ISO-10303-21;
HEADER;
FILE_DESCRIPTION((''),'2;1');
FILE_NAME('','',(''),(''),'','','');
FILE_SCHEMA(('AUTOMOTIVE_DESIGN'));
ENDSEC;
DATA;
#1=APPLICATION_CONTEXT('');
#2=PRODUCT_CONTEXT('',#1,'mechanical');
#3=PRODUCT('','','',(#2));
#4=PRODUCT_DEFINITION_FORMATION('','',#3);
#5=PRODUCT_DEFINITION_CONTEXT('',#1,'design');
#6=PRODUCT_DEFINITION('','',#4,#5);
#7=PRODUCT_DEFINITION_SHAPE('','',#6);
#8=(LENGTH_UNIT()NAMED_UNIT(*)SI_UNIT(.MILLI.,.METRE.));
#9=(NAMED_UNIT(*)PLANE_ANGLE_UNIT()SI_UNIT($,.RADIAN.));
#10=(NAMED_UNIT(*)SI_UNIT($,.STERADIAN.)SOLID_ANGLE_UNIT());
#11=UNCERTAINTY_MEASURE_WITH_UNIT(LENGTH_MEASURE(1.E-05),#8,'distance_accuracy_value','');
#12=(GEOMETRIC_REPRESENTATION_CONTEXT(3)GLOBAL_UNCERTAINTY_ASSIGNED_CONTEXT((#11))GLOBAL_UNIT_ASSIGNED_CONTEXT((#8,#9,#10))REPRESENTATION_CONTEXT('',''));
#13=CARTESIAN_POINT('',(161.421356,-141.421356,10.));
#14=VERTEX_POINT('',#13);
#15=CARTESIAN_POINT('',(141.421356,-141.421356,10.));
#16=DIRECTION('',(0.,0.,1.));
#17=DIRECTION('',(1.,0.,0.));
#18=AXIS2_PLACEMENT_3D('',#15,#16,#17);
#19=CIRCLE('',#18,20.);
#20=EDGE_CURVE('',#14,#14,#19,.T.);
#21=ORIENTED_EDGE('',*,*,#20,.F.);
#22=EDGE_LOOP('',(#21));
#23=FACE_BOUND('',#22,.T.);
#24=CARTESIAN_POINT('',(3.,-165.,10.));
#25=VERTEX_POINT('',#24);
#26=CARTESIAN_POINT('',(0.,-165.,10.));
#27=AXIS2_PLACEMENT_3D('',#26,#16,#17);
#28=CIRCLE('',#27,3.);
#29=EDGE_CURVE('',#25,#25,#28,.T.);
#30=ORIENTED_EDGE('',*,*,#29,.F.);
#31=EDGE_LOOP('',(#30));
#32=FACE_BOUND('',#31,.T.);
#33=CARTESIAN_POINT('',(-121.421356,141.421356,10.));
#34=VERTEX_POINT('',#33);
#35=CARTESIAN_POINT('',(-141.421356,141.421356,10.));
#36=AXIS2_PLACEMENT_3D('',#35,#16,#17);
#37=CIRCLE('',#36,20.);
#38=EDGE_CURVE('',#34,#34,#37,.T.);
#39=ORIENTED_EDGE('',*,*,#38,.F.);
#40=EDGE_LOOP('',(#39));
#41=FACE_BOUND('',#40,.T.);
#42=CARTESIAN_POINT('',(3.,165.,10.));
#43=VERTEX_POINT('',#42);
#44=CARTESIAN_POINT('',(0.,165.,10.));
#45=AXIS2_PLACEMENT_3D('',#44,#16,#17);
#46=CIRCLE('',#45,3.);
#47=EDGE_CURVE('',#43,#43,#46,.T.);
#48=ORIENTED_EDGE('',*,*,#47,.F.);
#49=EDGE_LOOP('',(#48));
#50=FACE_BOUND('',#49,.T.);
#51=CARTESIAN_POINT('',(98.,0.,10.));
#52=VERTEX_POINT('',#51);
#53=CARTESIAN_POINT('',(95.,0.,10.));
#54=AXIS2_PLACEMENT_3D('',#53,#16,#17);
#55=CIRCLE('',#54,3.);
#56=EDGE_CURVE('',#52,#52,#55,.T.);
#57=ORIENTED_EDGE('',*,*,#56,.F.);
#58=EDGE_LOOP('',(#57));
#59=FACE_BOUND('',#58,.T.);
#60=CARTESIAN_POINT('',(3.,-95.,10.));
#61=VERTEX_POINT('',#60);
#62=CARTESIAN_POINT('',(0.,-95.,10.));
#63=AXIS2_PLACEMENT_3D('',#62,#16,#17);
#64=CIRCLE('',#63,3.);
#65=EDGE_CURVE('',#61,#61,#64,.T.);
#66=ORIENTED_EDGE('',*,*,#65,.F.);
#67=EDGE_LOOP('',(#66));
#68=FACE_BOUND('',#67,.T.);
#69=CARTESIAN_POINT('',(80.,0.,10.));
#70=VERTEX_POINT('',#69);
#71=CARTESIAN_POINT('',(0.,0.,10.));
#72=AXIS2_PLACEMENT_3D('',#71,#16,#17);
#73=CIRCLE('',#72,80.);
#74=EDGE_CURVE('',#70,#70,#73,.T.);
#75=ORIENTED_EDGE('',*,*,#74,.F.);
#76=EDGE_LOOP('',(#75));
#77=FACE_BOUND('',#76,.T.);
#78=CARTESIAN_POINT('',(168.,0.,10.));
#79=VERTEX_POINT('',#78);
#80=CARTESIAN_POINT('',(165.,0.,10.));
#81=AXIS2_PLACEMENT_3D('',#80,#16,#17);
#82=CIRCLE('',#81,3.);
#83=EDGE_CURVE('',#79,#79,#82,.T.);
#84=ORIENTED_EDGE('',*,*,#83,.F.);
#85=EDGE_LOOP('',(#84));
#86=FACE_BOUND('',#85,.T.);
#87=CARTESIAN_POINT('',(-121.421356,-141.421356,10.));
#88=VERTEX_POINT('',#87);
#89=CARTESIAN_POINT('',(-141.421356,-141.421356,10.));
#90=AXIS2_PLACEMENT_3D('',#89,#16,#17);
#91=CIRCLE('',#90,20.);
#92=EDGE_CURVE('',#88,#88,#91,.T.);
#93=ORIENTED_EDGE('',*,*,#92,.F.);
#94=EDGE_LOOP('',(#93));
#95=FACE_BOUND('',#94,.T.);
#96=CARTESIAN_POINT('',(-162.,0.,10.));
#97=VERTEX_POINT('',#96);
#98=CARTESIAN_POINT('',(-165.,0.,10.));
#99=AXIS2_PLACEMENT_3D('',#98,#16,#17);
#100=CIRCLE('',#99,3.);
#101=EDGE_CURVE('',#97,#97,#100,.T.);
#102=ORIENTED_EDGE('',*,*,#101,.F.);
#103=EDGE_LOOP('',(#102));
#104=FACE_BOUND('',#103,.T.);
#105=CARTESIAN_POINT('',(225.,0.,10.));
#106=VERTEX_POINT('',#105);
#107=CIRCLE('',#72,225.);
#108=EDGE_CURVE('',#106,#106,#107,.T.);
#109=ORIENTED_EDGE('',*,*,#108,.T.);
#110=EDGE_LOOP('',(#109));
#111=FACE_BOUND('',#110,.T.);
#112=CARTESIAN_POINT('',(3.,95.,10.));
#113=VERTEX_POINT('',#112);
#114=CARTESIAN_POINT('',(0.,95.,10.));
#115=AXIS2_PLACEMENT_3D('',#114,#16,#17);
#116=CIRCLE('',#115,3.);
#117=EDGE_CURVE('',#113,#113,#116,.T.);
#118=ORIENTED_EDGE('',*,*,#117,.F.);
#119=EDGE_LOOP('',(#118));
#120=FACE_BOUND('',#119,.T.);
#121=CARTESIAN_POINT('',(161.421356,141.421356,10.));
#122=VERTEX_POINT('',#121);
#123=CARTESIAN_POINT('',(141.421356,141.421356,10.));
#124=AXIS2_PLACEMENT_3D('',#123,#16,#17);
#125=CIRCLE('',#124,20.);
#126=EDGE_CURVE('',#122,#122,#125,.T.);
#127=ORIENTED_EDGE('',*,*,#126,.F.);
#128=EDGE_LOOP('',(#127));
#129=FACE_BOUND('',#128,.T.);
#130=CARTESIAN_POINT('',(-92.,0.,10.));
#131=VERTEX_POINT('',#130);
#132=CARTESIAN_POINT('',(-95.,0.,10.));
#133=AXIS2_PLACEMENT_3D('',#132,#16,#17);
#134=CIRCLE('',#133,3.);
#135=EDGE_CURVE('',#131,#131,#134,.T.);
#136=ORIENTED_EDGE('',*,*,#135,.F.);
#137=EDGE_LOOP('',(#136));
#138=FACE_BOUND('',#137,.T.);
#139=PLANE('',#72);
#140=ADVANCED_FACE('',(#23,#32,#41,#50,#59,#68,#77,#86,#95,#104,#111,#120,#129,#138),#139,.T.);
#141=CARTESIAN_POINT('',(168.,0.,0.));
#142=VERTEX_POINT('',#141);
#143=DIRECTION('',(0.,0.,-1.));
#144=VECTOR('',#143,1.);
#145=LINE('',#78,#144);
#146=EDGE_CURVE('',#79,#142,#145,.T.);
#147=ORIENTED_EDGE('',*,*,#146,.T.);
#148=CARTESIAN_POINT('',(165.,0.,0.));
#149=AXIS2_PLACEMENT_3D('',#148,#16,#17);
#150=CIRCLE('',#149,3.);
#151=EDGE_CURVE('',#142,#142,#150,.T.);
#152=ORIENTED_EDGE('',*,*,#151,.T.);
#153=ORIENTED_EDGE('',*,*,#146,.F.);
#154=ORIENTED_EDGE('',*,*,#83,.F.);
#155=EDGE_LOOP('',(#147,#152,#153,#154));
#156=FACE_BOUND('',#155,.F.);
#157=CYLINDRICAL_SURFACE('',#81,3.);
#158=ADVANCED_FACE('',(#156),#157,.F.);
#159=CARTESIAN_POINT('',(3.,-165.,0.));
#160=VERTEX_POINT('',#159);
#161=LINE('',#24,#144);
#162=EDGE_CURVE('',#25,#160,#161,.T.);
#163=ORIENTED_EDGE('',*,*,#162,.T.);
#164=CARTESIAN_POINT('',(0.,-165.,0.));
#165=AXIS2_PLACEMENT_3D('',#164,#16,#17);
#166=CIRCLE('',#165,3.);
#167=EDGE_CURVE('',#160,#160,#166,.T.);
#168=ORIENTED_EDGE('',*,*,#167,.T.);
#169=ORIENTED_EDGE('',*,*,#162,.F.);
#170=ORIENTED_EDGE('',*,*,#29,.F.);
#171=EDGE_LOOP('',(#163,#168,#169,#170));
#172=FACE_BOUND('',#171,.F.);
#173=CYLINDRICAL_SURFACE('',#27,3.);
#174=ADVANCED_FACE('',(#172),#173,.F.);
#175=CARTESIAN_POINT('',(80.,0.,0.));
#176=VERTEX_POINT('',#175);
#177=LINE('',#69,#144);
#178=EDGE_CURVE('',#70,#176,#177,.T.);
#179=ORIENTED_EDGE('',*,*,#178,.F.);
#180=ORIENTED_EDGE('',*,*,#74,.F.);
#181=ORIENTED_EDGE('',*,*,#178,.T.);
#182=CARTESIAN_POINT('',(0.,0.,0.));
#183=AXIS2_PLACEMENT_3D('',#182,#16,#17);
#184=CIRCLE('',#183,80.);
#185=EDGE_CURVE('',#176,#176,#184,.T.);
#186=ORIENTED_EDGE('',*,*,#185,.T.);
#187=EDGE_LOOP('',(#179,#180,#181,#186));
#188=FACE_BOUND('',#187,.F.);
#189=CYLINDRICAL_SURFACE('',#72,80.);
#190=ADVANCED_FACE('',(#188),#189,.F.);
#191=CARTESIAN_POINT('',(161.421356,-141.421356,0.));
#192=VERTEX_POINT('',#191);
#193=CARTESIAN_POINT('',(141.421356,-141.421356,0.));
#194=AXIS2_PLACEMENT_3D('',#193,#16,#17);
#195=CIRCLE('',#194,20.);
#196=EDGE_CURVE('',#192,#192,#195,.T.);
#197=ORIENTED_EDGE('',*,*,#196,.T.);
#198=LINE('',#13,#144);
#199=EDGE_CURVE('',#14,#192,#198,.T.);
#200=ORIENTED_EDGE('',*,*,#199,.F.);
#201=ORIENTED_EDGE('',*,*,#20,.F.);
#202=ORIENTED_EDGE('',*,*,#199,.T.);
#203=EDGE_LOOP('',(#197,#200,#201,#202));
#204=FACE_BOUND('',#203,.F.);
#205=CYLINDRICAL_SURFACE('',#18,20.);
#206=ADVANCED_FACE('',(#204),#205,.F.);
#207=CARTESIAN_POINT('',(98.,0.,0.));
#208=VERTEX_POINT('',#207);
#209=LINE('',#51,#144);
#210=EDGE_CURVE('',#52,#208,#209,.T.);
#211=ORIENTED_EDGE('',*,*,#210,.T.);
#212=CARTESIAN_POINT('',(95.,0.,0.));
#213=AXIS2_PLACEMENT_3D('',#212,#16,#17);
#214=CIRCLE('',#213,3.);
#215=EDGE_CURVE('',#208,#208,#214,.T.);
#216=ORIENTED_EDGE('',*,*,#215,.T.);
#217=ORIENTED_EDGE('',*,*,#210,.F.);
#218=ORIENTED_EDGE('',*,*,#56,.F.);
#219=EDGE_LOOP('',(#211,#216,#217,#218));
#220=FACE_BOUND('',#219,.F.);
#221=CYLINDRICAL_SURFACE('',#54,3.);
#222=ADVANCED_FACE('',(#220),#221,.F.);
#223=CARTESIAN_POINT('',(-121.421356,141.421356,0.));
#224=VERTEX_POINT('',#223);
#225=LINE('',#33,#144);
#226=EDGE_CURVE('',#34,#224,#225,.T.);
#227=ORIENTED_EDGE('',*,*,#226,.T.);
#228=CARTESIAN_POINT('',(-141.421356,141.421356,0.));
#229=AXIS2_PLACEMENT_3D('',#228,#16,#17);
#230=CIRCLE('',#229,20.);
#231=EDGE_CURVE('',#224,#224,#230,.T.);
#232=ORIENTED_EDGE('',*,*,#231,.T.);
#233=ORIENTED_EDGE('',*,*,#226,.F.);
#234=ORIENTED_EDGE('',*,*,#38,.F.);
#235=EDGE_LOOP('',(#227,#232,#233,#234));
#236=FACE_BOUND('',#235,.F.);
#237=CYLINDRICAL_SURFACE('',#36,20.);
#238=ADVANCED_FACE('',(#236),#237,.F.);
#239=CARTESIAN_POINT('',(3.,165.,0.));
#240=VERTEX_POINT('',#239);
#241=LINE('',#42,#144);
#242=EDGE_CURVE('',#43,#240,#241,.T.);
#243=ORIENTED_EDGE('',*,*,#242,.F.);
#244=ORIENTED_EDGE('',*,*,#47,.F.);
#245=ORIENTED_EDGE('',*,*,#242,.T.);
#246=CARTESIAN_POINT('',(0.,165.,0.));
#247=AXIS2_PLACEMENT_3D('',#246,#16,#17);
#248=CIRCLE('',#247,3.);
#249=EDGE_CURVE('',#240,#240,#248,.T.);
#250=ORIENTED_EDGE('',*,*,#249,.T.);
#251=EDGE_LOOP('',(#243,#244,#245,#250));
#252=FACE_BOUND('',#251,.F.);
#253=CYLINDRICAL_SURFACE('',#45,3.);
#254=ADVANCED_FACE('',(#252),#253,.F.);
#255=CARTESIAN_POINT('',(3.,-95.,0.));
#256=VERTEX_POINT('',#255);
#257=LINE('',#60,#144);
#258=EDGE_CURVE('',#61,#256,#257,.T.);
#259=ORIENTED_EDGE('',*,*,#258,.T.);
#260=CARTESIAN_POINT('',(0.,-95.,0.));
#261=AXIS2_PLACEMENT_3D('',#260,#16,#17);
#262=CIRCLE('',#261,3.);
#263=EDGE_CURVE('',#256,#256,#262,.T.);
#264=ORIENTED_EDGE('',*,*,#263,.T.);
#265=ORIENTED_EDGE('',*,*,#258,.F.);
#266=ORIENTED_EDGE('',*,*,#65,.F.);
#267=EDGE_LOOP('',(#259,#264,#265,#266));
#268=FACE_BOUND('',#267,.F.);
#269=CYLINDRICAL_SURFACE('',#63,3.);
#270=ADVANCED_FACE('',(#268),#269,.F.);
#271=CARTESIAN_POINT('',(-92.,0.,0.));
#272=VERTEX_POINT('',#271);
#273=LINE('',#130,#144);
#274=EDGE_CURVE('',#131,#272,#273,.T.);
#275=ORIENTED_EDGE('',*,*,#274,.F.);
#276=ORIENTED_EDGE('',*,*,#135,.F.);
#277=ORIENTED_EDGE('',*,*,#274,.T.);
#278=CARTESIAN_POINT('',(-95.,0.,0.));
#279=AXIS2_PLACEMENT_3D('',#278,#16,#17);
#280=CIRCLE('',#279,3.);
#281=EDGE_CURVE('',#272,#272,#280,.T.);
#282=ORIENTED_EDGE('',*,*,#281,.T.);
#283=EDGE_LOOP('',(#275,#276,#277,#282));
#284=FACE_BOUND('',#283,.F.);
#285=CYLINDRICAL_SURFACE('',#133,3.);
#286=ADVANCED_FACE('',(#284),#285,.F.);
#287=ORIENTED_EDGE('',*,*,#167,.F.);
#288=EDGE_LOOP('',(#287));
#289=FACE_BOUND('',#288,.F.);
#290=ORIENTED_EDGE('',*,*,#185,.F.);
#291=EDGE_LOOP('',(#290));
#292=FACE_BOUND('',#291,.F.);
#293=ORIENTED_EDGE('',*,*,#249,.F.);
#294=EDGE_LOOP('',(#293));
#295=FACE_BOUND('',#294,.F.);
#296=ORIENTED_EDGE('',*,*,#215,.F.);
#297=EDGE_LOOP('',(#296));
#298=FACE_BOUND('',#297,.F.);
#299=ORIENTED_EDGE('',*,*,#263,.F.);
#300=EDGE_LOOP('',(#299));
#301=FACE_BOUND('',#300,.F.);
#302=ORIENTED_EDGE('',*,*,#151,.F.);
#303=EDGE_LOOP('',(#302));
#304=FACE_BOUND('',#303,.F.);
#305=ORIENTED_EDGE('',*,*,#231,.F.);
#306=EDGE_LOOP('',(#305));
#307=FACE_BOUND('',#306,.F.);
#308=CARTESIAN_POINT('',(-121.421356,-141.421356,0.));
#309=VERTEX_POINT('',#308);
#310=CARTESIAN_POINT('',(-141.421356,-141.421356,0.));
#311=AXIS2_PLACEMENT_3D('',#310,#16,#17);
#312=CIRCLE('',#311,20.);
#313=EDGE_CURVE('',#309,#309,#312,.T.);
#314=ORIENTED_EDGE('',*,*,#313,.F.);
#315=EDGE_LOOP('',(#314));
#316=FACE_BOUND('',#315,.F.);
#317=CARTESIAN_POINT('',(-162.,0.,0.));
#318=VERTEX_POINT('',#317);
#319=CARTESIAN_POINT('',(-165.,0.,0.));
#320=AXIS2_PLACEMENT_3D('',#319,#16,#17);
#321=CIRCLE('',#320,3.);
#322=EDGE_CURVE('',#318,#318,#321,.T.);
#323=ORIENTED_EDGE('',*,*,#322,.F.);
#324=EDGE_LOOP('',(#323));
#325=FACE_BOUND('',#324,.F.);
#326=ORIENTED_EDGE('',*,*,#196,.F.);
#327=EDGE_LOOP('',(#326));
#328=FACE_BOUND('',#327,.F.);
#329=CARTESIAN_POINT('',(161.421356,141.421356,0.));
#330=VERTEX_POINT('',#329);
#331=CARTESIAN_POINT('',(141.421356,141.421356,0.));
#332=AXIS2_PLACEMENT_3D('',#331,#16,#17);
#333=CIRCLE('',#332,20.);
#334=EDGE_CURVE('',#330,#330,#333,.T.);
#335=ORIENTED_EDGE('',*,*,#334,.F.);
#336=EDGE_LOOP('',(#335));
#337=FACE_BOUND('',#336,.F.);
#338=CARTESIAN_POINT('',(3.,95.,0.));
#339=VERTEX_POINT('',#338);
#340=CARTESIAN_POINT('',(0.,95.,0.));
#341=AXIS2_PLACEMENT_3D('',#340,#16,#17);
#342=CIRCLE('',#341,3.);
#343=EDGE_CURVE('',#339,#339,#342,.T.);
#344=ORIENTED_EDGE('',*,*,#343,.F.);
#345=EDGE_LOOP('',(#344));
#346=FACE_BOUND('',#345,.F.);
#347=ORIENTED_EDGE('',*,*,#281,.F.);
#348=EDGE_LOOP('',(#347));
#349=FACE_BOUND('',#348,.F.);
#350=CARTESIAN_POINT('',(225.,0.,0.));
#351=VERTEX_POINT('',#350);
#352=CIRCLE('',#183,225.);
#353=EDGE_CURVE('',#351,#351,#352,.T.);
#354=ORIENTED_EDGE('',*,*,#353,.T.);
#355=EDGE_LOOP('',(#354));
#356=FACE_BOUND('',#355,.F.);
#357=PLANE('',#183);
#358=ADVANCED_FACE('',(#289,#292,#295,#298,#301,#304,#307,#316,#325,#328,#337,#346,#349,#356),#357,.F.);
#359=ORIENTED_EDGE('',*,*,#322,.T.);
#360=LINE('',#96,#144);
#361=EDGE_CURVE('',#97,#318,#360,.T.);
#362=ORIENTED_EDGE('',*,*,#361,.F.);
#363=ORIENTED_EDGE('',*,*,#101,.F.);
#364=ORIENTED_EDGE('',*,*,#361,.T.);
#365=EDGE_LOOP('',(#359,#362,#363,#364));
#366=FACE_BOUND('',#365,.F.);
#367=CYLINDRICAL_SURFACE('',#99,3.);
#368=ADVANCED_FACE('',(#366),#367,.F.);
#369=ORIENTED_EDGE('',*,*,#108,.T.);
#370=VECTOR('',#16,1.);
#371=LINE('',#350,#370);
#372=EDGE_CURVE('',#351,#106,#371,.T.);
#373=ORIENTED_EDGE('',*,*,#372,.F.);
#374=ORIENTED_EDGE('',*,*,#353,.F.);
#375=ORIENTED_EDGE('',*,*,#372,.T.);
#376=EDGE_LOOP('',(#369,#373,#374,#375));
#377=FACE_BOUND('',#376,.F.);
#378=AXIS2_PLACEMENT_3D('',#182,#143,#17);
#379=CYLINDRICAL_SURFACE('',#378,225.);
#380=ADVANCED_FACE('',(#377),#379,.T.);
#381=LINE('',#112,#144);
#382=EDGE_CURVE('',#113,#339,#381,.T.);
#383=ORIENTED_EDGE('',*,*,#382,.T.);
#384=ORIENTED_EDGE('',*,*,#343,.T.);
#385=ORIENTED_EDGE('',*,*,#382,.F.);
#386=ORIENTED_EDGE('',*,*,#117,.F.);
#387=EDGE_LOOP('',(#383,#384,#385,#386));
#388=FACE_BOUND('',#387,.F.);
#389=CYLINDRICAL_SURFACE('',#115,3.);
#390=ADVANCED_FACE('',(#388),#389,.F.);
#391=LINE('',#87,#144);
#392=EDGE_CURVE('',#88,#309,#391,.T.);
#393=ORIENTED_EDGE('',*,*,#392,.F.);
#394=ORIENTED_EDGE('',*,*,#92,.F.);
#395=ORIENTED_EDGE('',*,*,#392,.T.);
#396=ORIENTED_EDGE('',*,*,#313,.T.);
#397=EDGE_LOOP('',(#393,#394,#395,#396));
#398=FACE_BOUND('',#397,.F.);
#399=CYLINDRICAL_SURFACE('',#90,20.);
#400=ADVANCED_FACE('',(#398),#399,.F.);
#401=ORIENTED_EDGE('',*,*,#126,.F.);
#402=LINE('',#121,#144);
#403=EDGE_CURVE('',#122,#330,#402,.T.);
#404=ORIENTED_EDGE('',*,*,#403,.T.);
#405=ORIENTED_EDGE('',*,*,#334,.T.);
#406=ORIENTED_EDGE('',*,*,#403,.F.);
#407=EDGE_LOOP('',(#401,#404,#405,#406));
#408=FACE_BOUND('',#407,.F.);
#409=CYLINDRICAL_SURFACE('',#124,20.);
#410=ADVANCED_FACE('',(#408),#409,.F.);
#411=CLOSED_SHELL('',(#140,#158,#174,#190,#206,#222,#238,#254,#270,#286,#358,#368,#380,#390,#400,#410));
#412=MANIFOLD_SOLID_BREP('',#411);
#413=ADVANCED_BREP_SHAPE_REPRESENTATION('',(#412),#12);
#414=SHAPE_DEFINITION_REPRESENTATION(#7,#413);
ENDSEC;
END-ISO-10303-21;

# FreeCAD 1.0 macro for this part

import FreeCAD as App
import Part
import Sketcher

V = App.Vector
Q = App.Units.Quantity

doc = App.newDocument("Part")
body = doc.addObject("PartDesign::Body", "Body")

# Sketch on XY plane
sketch1 = body.newObject("Sketcher::SketchObject", "Sketch")
sketch1.AttachmentSupport = (doc.getObject("XY_Plane"), [""])
sketch1.MapMode = "FlatFace"
sketch1.addGeometry(Part.Circle(V(0, 0, 0), V(0, 0, 1), 225), False)
sketch1.addConstraint([
    Sketcher.Constraint("Coincident", 0, 3, -1, 1),
    Sketcher.Constraint("Diameter", 0, Q("450 mm")),
])
pad1 = body.newObject("PartDesign::Pad", "Pad")
pad1.Profile = sketch1
pad1.Length = 10

# Sketch on XY plane
sketch2 = body.newObject("Sketcher::SketchObject", "Sketch001")
sketch2.AttachmentSupport = (doc.getObject("XY_Plane"), [""])
sketch2.MapMode = "FlatFace"
sketch2.AttachmentOffset = App.Placement(V(0, 0, 10), App.Rotation())
sketch2.addGeometry([
    Part.Circle(V(0, 0, 0), V(0, 0, 1), 80),  # 0
    Part.Circle(V(-95, 0, 0), V(0, 0, 1), 3),  # 1
    Part.Circle(V(-165, 0, 0), V(0, 0, 1), 3),  # 2
    Part.Circle(V(0, -95, 0), V(0, 0, 1), 3),  # 3
    Part.Circle(V(0, -165, 0), V(0, 0, 1), 3),  # 4
    Part.Circle(V(0, 165, 0), V(0, 0, 1), 3),  # 5
    Part.Circle(V(0, 95, 0), V(0, 0, 1), 3),  # 6
    Part.Circle(V(95, 0, 0), V(0, 0, 1), 3),  # 7
    Part.Circle(V(165, 0, 0), V(0, 0, 1), 3),  # 8
    Part.Circle(V(-141.421356, -141.421356, 0), V(0, 0, 1), 20),  # 9
    Part.Circle(V(-141.421356, 141.421356, 0), V(0, 0, 1), 20),  # 10
    Part.Circle(V(141.421356, -141.421356, 0), V(0, 0, 1), 20),  # 11
    Part.Circle(V(141.421356, 141.421356, 0), V(0, 0, 1), 20),  # 12
], False)
sketch2.addConstraint([
    Sketcher.Constraint("Coincident", 0, 3, -1, 1),
    Sketcher.Constraint("Equal", 1, 2),
    Sketcher.Constraint("Equal", 2, 3),
    Sketcher.Constraint("Equal", 3, 4),
    Sketcher.Constraint("Equal", 4, 5),
    Sketcher.Constraint("Equal", 5, 6),
    Sketcher.Constraint("Equal", 6, 7),
    Sketcher.Constraint("Equal", 7, 8),
    Sketcher.Constraint("Equal", 9, 10),
    Sketcher.Constraint("Equal", 10, 11),
    Sketcher.Constraint("Equal", 11, 12),
    Sketcher.Constraint("Symmetric", 4, 3, 5, 3, -1, 1),
    Sketcher.Constraint("Symmetric", 3, 3, 6, 3, -1, 1),
    Sketcher.Constraint("Symmetric", 1, 3, 7, 3, -1, 1),
    Sketcher.Constraint("Symmetric", 2, 3, 8, 3, -1, 1),
    Sketcher.Constraint("Symmetric", 10, 3, 11, 3, -1, 1),
    Sketcher.Constraint("Symmetric", 9, 3, 12, 3, -1, 1),
    Sketcher.Constraint("Symmetric", 9, 3, 11, 3, -2),
    Sketcher.Constraint("PointOnObject", 1, 3, -1),
    Sketcher.Constraint("PointOnObject", 2, 3, -1),
    Sketcher.Constraint("PointOnObject", 3, 3, -2),
    Sketcher.Constraint("PointOnObject", 4, 3, -2),
    Sketcher.Constraint("Diameter", 0, Q("160 mm")),
    Sketcher.Constraint("Diameter", 1, Q("6 mm")),
    Sketcher.Constraint("Diameter", 9, Q("40 mm")),
    Sketcher.Constraint("DistanceX", 1, 3, -1, 1, Q("95 mm")),
    Sketcher.Constraint("DistanceX", 2, 3, -1, 1, Q("165 mm")),
    Sketcher.Constraint("DistanceY", 3, 3, -1, 1, Q("95 mm")),
    Sketcher.Constraint("DistanceY", 4, 3, -1, 1, Q("165 mm")),
    Sketcher.Constraint("DistanceX", 9, 3, -1, 1, Q("141.421356 mm")),
    Sketcher.Constraint("DistanceY", 9, 3, -1, 1, Q("141.421356 mm")),
])
pocket1 = body.newObject("PartDesign::Pocket", "Pocket")
pocket1.Profile = sketch2
pocket1.Type = "ThroughAll"

doc.recompute()
